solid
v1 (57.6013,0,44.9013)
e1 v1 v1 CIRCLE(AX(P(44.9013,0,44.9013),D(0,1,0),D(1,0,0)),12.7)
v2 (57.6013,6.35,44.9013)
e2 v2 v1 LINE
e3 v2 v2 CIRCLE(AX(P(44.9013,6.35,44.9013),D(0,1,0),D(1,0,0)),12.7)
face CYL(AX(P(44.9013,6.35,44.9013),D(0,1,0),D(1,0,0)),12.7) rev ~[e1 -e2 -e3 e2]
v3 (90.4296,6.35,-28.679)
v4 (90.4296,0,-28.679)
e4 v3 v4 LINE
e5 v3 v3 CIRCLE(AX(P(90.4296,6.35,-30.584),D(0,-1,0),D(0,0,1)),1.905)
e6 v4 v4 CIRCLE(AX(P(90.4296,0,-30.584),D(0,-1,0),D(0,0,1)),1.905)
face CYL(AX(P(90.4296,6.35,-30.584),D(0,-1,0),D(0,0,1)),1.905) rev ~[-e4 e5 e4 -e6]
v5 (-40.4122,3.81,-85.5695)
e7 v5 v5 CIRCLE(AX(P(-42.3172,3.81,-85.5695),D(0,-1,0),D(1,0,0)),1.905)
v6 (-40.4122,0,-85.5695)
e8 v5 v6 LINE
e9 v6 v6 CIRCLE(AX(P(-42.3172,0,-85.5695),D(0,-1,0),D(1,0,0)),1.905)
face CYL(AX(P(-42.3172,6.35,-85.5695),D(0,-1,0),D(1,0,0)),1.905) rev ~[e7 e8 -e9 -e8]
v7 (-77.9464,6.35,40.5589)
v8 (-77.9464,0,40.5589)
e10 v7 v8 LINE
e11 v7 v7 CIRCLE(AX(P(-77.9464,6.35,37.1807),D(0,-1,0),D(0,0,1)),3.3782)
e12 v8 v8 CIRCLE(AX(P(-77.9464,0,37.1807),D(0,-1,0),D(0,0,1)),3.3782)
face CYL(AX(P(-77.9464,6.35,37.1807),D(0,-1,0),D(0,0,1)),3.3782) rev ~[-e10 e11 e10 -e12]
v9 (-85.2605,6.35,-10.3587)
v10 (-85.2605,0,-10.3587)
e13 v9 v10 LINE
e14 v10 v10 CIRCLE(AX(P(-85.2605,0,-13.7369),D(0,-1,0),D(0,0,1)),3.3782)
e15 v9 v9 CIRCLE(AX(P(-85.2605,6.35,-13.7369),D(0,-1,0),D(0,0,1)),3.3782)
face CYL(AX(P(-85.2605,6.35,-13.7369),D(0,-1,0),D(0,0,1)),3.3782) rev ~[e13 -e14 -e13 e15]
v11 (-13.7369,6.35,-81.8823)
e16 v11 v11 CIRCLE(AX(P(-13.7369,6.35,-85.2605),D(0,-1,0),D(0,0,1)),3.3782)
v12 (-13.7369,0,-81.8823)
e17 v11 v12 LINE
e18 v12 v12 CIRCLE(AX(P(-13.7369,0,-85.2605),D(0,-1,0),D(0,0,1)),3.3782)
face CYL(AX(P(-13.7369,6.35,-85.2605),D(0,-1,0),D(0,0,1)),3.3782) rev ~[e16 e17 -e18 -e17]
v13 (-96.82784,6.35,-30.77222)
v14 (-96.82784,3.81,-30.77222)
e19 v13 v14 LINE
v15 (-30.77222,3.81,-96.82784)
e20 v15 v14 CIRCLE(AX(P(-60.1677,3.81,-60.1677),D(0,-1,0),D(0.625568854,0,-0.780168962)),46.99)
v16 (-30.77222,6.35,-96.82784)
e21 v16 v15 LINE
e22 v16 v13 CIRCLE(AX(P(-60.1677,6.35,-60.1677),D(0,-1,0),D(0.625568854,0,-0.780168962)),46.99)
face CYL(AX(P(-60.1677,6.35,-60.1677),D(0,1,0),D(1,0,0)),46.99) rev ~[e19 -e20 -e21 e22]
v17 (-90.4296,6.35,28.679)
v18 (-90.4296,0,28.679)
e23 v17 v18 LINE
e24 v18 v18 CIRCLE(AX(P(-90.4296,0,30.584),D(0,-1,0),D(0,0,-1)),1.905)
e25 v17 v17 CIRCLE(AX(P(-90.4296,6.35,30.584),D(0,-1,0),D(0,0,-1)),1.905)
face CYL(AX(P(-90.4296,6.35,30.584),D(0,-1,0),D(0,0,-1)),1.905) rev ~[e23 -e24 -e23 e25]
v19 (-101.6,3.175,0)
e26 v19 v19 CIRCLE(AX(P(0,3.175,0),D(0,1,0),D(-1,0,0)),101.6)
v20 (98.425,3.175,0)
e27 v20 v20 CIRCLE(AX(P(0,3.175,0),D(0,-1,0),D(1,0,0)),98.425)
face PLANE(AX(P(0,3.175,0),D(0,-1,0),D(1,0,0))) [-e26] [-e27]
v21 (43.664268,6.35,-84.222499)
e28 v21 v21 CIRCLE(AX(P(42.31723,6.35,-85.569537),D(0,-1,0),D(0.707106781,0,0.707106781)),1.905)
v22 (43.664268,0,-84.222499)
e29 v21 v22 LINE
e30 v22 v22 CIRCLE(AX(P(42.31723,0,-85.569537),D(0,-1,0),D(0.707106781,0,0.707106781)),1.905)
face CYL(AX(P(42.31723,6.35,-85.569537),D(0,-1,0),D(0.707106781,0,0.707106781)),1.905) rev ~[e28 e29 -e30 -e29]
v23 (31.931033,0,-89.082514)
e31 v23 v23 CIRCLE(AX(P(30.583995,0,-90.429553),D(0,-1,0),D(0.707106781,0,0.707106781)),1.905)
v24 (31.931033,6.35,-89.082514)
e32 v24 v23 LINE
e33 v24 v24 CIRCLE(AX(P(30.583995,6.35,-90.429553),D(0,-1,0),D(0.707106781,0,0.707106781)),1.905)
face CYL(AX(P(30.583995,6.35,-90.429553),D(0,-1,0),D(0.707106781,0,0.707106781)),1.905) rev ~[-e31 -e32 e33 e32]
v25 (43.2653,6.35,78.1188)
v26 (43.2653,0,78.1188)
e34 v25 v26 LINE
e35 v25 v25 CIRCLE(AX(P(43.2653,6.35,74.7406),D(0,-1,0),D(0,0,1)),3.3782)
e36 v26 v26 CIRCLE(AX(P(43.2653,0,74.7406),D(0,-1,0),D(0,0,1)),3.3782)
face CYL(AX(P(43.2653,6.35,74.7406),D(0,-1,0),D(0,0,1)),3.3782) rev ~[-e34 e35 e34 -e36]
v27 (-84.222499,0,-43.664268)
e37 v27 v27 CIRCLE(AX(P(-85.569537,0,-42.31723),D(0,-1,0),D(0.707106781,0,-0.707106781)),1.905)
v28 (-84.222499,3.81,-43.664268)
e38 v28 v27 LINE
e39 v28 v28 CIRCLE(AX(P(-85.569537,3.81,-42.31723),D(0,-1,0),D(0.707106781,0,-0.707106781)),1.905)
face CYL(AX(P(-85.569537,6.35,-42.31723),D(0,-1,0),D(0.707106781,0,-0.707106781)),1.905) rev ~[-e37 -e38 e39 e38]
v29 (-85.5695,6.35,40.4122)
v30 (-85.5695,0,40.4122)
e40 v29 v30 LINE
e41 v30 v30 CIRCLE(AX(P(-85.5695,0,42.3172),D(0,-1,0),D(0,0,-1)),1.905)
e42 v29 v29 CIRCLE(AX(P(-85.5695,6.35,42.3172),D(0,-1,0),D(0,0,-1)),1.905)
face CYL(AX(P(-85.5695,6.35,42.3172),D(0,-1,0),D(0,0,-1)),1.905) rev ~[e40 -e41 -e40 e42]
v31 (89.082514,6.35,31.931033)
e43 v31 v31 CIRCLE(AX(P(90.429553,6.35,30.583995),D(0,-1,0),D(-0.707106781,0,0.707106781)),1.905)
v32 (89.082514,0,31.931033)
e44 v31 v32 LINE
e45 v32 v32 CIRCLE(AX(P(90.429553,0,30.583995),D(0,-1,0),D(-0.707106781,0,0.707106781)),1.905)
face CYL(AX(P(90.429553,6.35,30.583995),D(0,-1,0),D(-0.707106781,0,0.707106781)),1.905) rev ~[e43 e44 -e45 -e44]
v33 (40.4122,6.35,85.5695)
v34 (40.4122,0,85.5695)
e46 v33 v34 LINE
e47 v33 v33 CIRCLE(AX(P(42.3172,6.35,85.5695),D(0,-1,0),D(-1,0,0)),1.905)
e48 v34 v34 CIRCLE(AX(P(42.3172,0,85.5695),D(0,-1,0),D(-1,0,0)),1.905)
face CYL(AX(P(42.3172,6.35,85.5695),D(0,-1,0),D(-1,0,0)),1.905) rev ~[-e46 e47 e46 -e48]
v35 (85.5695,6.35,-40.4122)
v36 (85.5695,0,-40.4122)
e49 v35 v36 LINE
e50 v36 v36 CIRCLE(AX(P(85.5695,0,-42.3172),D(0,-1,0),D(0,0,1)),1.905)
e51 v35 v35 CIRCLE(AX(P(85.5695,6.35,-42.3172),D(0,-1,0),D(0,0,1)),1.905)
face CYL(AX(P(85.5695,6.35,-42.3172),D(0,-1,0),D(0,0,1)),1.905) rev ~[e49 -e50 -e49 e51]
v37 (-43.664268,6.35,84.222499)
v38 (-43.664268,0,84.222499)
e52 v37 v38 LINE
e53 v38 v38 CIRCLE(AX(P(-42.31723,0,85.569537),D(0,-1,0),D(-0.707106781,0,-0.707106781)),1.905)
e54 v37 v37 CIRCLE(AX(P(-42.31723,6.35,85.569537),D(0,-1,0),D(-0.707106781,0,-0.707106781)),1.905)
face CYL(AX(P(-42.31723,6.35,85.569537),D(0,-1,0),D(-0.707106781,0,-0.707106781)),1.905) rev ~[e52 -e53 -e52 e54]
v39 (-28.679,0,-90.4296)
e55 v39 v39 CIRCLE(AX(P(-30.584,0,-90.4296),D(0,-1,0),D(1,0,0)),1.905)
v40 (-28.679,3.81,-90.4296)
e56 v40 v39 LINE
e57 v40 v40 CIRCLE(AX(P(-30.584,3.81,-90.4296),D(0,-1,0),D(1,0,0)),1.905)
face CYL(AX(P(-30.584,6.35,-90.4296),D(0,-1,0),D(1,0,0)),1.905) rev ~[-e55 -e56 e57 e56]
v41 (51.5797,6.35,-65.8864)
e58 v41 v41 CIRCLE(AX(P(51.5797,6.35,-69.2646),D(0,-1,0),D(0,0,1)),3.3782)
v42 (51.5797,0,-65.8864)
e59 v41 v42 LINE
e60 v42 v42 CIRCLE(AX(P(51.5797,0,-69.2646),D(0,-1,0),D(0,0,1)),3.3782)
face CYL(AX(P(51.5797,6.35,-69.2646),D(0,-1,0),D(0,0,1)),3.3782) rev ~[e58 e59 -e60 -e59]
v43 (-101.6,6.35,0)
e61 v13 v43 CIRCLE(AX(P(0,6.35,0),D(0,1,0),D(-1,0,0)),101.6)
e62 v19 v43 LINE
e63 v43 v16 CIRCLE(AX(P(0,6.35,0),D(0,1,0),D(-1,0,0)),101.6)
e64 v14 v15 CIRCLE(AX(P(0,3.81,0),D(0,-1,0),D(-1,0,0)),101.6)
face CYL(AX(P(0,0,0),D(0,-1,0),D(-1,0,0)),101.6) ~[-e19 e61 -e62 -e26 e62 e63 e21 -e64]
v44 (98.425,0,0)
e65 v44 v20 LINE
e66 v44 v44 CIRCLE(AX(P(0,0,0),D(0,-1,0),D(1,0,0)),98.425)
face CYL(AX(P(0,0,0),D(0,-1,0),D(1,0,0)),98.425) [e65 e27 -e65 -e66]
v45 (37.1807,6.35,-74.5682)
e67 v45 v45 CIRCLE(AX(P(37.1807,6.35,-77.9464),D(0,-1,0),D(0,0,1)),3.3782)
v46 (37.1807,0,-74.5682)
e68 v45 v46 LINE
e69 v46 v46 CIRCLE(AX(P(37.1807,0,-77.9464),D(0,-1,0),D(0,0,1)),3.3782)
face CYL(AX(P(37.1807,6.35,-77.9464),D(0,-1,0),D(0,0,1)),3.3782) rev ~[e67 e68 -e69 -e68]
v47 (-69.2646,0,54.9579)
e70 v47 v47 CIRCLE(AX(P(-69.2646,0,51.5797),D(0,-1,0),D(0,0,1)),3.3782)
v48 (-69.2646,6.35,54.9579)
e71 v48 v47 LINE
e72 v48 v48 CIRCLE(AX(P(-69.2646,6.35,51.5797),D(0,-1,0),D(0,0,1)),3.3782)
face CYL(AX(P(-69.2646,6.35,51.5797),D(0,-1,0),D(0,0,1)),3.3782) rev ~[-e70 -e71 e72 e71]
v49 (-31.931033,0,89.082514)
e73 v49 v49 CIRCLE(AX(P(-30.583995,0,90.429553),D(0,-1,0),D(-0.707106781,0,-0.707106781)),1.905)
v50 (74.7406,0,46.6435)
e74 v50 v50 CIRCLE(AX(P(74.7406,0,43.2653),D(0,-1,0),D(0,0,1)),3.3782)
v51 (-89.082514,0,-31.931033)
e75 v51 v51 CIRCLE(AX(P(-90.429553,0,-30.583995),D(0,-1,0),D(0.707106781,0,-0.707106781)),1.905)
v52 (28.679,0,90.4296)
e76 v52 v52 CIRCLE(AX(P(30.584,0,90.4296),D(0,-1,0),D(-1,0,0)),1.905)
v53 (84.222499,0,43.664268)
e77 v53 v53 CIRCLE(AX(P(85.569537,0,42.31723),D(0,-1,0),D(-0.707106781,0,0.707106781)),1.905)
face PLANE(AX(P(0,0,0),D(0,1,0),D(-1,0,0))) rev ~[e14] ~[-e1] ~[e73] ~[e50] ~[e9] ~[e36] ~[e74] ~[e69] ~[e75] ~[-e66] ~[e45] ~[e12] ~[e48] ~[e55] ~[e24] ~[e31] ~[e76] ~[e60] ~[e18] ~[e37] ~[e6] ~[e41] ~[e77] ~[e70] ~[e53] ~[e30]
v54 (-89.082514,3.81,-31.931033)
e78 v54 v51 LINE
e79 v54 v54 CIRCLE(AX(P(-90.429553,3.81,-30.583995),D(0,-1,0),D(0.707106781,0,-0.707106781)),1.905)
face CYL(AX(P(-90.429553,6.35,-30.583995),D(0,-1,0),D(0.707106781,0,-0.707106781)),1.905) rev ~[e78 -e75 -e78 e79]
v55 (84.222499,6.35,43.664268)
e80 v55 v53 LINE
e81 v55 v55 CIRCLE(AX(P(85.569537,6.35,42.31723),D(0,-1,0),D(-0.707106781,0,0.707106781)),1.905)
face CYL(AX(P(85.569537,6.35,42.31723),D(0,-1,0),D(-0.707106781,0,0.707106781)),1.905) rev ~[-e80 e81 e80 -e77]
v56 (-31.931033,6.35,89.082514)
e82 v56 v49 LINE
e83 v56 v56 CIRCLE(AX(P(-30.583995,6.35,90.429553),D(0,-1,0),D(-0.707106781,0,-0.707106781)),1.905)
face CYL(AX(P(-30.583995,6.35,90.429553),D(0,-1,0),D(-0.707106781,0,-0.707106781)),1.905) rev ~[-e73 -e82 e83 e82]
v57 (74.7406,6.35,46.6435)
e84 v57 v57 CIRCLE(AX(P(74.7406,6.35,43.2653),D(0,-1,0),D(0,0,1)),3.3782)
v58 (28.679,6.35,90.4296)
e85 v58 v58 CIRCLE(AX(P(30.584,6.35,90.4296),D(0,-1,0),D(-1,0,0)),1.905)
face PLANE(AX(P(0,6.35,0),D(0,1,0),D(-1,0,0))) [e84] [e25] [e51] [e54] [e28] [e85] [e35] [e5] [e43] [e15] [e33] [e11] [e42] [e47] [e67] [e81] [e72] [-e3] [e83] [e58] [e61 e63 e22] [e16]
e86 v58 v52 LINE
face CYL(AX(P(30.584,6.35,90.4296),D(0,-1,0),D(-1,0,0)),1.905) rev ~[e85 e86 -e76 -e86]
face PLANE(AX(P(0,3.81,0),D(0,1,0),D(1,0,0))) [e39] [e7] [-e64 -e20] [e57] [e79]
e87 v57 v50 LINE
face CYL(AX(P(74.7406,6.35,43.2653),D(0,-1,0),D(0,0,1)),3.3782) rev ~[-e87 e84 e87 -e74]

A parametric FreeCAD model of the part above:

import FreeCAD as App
import Part
import Sketcher
Q = App.Units.Quantity

doc = App.newDocument("Part")
params = doc.addObject("Spreadsheet::Sheet", "Params")
for row, (alias, value) in enumerate([
    ("sketch1_diameter", "8 in"),
    ("pad1_length", "0.25 in"),
    ("sketch2_diameter", "0.15 in"),
    ("hole_diameter", "0.15 in"),
    ("hole_depth", "0.349 in"),
    ("sketch3_diameter", "7.75 in"),
    ("sketch3_diameter2", "8 in"),
    ("pocket1_length", "0.125 in"),
    ("sketch4_diameter", "1 in"),
    ("pocket2_length", "1 in"),
    ("sketch5_diameter", "3.7 in"),
    ("pocket3_length", "0.1 in"),
    ("sketch6_diameter", "0.266 in"),
    ("hole2_diameter", "0.266 in"),
    ("hole2_depth", "1 in"),
], start=1):
    params.set(f"A{row}", alias)
    params.set(f"B{row}", "=" + value)
    params.setAlias(f"B{row}", alias)

body = doc.addObject("PartDesign::Body", "Body")

sketch1 = body.newObject("Sketcher::SketchObject", "Sketch")
sketch1.AttachmentSupport = (doc.getObject("XZ_Plane"), [""])
sketch1.MapMode = "FlatFace"
sketch1.addGeometry(Part.Circle(App.Vector(0, 0, 0), App.Vector(0, 0, 1), 102), False)
sketch1.addConstraint([
    Sketcher.Constraint("Coincident", 0, 3, -1, 1),
    Sketcher.Constraint("Diameter", 0, Q("8 in")),
])
sketch1.setExpression("Constraints[1]", "Params.sketch1_diameter")
pad1 = body.newObject("PartDesign::Pad", "Pad")
pad1.Profile = sketch1
pad1.setExpression("Length", "Params.pad1_length")
pad1.Reversed = True

sketch2 = body.newObject("Sketcher::SketchObject", "Sketch001")
sketch2.AttachmentSupport = (doc.getObject("XZ_Plane"), [""])
sketch2.MapMode = "FlatFace"
sketch2.AttachmentOffset = App.Placement(App.Vector(0, 0, -0.25 * 25.4), App.Rotation())
sketch2.addGeometry([
    Part.Circle(App.Vector(90.4, -30.6, 0), App.Vector(0, 0, 1), 1.9),
    Part.Circle(App.Vector(85.6, -42.3, 0), App.Vector(0, 0, 1), 1.9),
], False)
sketch2.addConstraint([
    Sketcher.Constraint("Equal", 0, 1),
    Sketcher.Constraint("Diameter", 0, Q("0.15 in")),
    Sketcher.Constraint("DistanceY", 0, 3, -1, 1, Q("1.2041 in")),
    Sketcher.Constraint("DistanceX", -1, 1, 0, 3, 90.4296),
    Sketcher.Constraint("DistanceX", -1, 1, 1, 3, 85.5695),
    Sketcher.Constraint("DistanceY", 1, 3, -1, 1, 42.3172),
])
sketch2.setExpression("Constraints[1]", "Params.sketch2_diameter")
doc.recompute()
hole = body.newObject("PartDesign::Hole", "Hole")
hole.Profile = sketch2
hole.ThreadType = "None"
hole.setExpression("Diameter", "Params.hole_diameter")
hole.DepthType = "Dimension"
hole.setExpression("Depth", "Params.hole_depth")
hole.DrillPoint = "Angled"
hole.DrillPointAngle = 118
hole.Reversed = True
doc.recompute()

polarpattern = body.newObject("PartDesign::PolarPattern", "PolarPattern")
polarpattern.Originals = [hole]
polarpattern.Axis = (doc.getObject("Y_Axis"), [""])
polarpattern.Angle = 360
polarpattern.Occurrences = 8
body.Tip = polarpattern

sketch3 = body.newObject("Sketcher::SketchObject", "Sketch002")
sketch3.AttachmentSupport = (doc.getObject("XZ_Plane"), [""])
sketch3.MapMode = "FlatFace"
sketch3.addGeometry([
    Part.Circle(App.Vector(0, 0, 0), App.Vector(0, 0, 1), 102),
    Part.Circle(App.Vector(0, 0, 0), App.Vector(0, 0, 1), 98),
], False)
sketch3.addConstraint([
    Sketcher.Constraint("Coincident", 0, 3, -1, 1),
    Sketcher.Constraint("Coincident", 1, 3, -1, 1),
    Sketcher.Constraint("Diameter", 1, Q("7.75 in")),
    Sketcher.Constraint("Diameter", 0, Q("8 in")),
])
sketch3.setExpression("Constraints[2]", "Params.sketch3_diameter")
sketch3.setExpression("Constraints[3]", "Params.sketch3_diameter2")
pocket1 = body.newObject("PartDesign::Pocket", "Pocket")
pocket1.Profile = sketch3
pocket1.setExpression("Length", "Params.pocket1_length")

sketch4 = body.newObject("Sketcher::SketchObject", "Sketch003")
sketch4.AttachmentSupport = (doc.getObject("XZ_Plane"), [""])
sketch4.MapMode = "FlatFace"
sketch4.AttachmentOffset = App.Placement(App.Vector(0, 0, -0.25 * 25.4), App.Rotation())
sketch4.addGeometry(Part.Circle(App.Vector(45, 45, 0), App.Vector(0, 0, 1), 13), False)
sketch4.addConstraint([
    Sketcher.Constraint("Diameter", 0, Q("1 in")),
    Sketcher.Constraint("DistanceX", -1, 1, 0, 3, 44.9013),
    Sketcher.Constraint("DistanceY", -1, 1, 0, 3, 44.9013),
])
sketch4.setExpression("Constraints[0]", "Params.sketch4_diameter")
pocket2 = body.newObject("PartDesign::Pocket", "Pocket001")
pocket2.Profile = sketch4
pocket2.setExpression("Length", "Params.pocket2_length")
pocket2.Reversed = True

sketch5 = body.newObject("Sketcher::SketchObject", "Sketch004")
sketch5.AttachmentSupport = (doc.getObject("XZ_Plane"), [""])
sketch5.MapMode = "FlatFace"
sketch5.AttachmentOffset = App.Placement(App.Vector(0, 0, -0.25 * 25.4), App.Rotation())
sketch5.addGeometry(Part.Circle(App.Vector(-60, -60, 0), App.Vector(0, 0, 1), 47), False)
sketch5.addConstraint([
    Sketcher.Constraint("Diameter", 0, Q("3.7 in")),
    Sketcher.Constraint("DistanceX", 0, 3, -1, 1, Q("2.3688 in")),
    Sketcher.Constraint("DistanceY", 0, 3, -1, 1, Q("2.3688 in")),
])
sketch5.setExpression("Constraints[0]", "Params.sketch5_diameter")
pocket3 = body.newObject("PartDesign::Pocket", "Pocket002")
pocket3.Profile = sketch5
pocket3.setExpression("Length", "Params.pocket3_length")
pocket3.Reversed = True

sketch6 = body.newObject("Sketcher::SketchObject", "Sketch005")
sketch6.AttachmentSupport = (doc.getObject("XZ_Plane"), [""])
sketch6.MapMode = "FlatFace"
sketch6.AttachmentOffset = App.Placement(App.Vector(0, 0, -0.25 * 25.4), App.Rotation())
sketch6.addGeometry([
    Part.Circle(App.Vector(-85.3, -13.7, 0), App.Vector(0, 0, 1), 3.4),
    Part.Circle(App.Vector(-77.9, 37.2, 0), App.Vector(0, 0, 1), 3.4),
    Part.Circle(App.Vector(43.3, 74.7, 0), App.Vector(0, 0, 1), 3.4),
    Part.Circle(App.Vector(-69.3, 51.6, 0), App.Vector(0, 0, 1), 3.4),
    Part.Circle(App.Vector(37.2, -77.9, 0), App.Vector(0, 0, 1), 3.4),
    Part.Circle(App.Vector(51.6, -69.3, 0), App.Vector(0, 0, 1), 3.4),
    Part.Circle(App.Vector(-13.7, -85.3, 0), App.Vector(0, 0, 1), 3.4),
    Part.Circle(App.Vector(74.7, 43.3, 0), App.Vector(0, 0, 1), 3.4),
], False)
sketch6.addConstraint([
    Sketcher.Constraint("Equal", 0, 1),
    Sketcher.Constraint("Equal", 1, 2),
    Sketcher.Constraint("Equal", 2, 3),
    Sketcher.Constraint("Equal", 3, 4),
    Sketcher.Constraint("Equal", 4, 5),
    Sketcher.Constraint("Equal", 5, 6),
    Sketcher.Constraint("Equal", 6, 7),
    Sketcher.Constraint("Diameter", 0, Q("0.266 in")),
    Sketcher.Constraint("DistanceY", -1, 1, 1, 3, Q("1.4638 in")),
    Sketcher.Constraint("DistanceY", -1, 1, 3, 3, Q("2.0307 in")),
    Sketcher.Constraint("DistanceX", -1, 1, 4, 3, Q("1.4638 in")),
    Sketcher.Constraint("DistanceX", -1, 1, 5, 3, Q("2.0307 in")),
    Sketcher.Constraint("DistanceX", 1, 3, 3, 3, Q("0.3418 in")),
    Sketcher.Constraint("DistanceX", 3, 3, 2, 3, Q("4.4303 in")),
    Sketcher.Constraint("DistanceY", 4, 3, 2, 3, Q("6.0113 in")),
    Sketcher.Constraint("DistanceY", 4, 3, 5, 3, Q("0.3418 in")),
    Sketcher.Constraint("DistanceX", 0, 3, 5, 3, Q("5.3874 in")),
    Sketcher.Constraint("DistanceX", 0, 3, 6, 3, Q("2.8159 in")),
    Sketcher.Constraint("DistanceY", 6, 3, 0, 3, Q("2.8159 in")),
    Sketcher.Constraint("DistanceY", 6, 3, 3, 3, Q("5.3874 in")),
    Sketcher.Constraint("DistanceY", 5, 3, 7, 3, Q("4.4303 in")),
    Sketcher.Constraint("DistanceX", 3, 3, 7, 3, Q("5.6695 in")),
    Sketcher.Constraint("DistanceX", 1, 3, -1, 1, 77.9464),
    Sketcher.Constraint("DistanceY", -1, 1, 2, 3, 74.7406),
])
sketch6.setExpression("Constraints[7]", "Params.sketch6_diameter")
doc.recompute()
hole2 = body.newObject("PartDesign::Hole", "Hole001")
hole2.Profile = sketch6
hole2.ThreadType = "None"
hole2.setExpression("Diameter", "Params.hole2_diameter")
hole2.DepthType = "Dimension"
hole2.setExpression("Depth", "Params.hole2_depth")
hole2.DrillPoint = "Angled"
hole2.DrillPointAngle = 118
hole2.Reversed = True

doc.recompute()
